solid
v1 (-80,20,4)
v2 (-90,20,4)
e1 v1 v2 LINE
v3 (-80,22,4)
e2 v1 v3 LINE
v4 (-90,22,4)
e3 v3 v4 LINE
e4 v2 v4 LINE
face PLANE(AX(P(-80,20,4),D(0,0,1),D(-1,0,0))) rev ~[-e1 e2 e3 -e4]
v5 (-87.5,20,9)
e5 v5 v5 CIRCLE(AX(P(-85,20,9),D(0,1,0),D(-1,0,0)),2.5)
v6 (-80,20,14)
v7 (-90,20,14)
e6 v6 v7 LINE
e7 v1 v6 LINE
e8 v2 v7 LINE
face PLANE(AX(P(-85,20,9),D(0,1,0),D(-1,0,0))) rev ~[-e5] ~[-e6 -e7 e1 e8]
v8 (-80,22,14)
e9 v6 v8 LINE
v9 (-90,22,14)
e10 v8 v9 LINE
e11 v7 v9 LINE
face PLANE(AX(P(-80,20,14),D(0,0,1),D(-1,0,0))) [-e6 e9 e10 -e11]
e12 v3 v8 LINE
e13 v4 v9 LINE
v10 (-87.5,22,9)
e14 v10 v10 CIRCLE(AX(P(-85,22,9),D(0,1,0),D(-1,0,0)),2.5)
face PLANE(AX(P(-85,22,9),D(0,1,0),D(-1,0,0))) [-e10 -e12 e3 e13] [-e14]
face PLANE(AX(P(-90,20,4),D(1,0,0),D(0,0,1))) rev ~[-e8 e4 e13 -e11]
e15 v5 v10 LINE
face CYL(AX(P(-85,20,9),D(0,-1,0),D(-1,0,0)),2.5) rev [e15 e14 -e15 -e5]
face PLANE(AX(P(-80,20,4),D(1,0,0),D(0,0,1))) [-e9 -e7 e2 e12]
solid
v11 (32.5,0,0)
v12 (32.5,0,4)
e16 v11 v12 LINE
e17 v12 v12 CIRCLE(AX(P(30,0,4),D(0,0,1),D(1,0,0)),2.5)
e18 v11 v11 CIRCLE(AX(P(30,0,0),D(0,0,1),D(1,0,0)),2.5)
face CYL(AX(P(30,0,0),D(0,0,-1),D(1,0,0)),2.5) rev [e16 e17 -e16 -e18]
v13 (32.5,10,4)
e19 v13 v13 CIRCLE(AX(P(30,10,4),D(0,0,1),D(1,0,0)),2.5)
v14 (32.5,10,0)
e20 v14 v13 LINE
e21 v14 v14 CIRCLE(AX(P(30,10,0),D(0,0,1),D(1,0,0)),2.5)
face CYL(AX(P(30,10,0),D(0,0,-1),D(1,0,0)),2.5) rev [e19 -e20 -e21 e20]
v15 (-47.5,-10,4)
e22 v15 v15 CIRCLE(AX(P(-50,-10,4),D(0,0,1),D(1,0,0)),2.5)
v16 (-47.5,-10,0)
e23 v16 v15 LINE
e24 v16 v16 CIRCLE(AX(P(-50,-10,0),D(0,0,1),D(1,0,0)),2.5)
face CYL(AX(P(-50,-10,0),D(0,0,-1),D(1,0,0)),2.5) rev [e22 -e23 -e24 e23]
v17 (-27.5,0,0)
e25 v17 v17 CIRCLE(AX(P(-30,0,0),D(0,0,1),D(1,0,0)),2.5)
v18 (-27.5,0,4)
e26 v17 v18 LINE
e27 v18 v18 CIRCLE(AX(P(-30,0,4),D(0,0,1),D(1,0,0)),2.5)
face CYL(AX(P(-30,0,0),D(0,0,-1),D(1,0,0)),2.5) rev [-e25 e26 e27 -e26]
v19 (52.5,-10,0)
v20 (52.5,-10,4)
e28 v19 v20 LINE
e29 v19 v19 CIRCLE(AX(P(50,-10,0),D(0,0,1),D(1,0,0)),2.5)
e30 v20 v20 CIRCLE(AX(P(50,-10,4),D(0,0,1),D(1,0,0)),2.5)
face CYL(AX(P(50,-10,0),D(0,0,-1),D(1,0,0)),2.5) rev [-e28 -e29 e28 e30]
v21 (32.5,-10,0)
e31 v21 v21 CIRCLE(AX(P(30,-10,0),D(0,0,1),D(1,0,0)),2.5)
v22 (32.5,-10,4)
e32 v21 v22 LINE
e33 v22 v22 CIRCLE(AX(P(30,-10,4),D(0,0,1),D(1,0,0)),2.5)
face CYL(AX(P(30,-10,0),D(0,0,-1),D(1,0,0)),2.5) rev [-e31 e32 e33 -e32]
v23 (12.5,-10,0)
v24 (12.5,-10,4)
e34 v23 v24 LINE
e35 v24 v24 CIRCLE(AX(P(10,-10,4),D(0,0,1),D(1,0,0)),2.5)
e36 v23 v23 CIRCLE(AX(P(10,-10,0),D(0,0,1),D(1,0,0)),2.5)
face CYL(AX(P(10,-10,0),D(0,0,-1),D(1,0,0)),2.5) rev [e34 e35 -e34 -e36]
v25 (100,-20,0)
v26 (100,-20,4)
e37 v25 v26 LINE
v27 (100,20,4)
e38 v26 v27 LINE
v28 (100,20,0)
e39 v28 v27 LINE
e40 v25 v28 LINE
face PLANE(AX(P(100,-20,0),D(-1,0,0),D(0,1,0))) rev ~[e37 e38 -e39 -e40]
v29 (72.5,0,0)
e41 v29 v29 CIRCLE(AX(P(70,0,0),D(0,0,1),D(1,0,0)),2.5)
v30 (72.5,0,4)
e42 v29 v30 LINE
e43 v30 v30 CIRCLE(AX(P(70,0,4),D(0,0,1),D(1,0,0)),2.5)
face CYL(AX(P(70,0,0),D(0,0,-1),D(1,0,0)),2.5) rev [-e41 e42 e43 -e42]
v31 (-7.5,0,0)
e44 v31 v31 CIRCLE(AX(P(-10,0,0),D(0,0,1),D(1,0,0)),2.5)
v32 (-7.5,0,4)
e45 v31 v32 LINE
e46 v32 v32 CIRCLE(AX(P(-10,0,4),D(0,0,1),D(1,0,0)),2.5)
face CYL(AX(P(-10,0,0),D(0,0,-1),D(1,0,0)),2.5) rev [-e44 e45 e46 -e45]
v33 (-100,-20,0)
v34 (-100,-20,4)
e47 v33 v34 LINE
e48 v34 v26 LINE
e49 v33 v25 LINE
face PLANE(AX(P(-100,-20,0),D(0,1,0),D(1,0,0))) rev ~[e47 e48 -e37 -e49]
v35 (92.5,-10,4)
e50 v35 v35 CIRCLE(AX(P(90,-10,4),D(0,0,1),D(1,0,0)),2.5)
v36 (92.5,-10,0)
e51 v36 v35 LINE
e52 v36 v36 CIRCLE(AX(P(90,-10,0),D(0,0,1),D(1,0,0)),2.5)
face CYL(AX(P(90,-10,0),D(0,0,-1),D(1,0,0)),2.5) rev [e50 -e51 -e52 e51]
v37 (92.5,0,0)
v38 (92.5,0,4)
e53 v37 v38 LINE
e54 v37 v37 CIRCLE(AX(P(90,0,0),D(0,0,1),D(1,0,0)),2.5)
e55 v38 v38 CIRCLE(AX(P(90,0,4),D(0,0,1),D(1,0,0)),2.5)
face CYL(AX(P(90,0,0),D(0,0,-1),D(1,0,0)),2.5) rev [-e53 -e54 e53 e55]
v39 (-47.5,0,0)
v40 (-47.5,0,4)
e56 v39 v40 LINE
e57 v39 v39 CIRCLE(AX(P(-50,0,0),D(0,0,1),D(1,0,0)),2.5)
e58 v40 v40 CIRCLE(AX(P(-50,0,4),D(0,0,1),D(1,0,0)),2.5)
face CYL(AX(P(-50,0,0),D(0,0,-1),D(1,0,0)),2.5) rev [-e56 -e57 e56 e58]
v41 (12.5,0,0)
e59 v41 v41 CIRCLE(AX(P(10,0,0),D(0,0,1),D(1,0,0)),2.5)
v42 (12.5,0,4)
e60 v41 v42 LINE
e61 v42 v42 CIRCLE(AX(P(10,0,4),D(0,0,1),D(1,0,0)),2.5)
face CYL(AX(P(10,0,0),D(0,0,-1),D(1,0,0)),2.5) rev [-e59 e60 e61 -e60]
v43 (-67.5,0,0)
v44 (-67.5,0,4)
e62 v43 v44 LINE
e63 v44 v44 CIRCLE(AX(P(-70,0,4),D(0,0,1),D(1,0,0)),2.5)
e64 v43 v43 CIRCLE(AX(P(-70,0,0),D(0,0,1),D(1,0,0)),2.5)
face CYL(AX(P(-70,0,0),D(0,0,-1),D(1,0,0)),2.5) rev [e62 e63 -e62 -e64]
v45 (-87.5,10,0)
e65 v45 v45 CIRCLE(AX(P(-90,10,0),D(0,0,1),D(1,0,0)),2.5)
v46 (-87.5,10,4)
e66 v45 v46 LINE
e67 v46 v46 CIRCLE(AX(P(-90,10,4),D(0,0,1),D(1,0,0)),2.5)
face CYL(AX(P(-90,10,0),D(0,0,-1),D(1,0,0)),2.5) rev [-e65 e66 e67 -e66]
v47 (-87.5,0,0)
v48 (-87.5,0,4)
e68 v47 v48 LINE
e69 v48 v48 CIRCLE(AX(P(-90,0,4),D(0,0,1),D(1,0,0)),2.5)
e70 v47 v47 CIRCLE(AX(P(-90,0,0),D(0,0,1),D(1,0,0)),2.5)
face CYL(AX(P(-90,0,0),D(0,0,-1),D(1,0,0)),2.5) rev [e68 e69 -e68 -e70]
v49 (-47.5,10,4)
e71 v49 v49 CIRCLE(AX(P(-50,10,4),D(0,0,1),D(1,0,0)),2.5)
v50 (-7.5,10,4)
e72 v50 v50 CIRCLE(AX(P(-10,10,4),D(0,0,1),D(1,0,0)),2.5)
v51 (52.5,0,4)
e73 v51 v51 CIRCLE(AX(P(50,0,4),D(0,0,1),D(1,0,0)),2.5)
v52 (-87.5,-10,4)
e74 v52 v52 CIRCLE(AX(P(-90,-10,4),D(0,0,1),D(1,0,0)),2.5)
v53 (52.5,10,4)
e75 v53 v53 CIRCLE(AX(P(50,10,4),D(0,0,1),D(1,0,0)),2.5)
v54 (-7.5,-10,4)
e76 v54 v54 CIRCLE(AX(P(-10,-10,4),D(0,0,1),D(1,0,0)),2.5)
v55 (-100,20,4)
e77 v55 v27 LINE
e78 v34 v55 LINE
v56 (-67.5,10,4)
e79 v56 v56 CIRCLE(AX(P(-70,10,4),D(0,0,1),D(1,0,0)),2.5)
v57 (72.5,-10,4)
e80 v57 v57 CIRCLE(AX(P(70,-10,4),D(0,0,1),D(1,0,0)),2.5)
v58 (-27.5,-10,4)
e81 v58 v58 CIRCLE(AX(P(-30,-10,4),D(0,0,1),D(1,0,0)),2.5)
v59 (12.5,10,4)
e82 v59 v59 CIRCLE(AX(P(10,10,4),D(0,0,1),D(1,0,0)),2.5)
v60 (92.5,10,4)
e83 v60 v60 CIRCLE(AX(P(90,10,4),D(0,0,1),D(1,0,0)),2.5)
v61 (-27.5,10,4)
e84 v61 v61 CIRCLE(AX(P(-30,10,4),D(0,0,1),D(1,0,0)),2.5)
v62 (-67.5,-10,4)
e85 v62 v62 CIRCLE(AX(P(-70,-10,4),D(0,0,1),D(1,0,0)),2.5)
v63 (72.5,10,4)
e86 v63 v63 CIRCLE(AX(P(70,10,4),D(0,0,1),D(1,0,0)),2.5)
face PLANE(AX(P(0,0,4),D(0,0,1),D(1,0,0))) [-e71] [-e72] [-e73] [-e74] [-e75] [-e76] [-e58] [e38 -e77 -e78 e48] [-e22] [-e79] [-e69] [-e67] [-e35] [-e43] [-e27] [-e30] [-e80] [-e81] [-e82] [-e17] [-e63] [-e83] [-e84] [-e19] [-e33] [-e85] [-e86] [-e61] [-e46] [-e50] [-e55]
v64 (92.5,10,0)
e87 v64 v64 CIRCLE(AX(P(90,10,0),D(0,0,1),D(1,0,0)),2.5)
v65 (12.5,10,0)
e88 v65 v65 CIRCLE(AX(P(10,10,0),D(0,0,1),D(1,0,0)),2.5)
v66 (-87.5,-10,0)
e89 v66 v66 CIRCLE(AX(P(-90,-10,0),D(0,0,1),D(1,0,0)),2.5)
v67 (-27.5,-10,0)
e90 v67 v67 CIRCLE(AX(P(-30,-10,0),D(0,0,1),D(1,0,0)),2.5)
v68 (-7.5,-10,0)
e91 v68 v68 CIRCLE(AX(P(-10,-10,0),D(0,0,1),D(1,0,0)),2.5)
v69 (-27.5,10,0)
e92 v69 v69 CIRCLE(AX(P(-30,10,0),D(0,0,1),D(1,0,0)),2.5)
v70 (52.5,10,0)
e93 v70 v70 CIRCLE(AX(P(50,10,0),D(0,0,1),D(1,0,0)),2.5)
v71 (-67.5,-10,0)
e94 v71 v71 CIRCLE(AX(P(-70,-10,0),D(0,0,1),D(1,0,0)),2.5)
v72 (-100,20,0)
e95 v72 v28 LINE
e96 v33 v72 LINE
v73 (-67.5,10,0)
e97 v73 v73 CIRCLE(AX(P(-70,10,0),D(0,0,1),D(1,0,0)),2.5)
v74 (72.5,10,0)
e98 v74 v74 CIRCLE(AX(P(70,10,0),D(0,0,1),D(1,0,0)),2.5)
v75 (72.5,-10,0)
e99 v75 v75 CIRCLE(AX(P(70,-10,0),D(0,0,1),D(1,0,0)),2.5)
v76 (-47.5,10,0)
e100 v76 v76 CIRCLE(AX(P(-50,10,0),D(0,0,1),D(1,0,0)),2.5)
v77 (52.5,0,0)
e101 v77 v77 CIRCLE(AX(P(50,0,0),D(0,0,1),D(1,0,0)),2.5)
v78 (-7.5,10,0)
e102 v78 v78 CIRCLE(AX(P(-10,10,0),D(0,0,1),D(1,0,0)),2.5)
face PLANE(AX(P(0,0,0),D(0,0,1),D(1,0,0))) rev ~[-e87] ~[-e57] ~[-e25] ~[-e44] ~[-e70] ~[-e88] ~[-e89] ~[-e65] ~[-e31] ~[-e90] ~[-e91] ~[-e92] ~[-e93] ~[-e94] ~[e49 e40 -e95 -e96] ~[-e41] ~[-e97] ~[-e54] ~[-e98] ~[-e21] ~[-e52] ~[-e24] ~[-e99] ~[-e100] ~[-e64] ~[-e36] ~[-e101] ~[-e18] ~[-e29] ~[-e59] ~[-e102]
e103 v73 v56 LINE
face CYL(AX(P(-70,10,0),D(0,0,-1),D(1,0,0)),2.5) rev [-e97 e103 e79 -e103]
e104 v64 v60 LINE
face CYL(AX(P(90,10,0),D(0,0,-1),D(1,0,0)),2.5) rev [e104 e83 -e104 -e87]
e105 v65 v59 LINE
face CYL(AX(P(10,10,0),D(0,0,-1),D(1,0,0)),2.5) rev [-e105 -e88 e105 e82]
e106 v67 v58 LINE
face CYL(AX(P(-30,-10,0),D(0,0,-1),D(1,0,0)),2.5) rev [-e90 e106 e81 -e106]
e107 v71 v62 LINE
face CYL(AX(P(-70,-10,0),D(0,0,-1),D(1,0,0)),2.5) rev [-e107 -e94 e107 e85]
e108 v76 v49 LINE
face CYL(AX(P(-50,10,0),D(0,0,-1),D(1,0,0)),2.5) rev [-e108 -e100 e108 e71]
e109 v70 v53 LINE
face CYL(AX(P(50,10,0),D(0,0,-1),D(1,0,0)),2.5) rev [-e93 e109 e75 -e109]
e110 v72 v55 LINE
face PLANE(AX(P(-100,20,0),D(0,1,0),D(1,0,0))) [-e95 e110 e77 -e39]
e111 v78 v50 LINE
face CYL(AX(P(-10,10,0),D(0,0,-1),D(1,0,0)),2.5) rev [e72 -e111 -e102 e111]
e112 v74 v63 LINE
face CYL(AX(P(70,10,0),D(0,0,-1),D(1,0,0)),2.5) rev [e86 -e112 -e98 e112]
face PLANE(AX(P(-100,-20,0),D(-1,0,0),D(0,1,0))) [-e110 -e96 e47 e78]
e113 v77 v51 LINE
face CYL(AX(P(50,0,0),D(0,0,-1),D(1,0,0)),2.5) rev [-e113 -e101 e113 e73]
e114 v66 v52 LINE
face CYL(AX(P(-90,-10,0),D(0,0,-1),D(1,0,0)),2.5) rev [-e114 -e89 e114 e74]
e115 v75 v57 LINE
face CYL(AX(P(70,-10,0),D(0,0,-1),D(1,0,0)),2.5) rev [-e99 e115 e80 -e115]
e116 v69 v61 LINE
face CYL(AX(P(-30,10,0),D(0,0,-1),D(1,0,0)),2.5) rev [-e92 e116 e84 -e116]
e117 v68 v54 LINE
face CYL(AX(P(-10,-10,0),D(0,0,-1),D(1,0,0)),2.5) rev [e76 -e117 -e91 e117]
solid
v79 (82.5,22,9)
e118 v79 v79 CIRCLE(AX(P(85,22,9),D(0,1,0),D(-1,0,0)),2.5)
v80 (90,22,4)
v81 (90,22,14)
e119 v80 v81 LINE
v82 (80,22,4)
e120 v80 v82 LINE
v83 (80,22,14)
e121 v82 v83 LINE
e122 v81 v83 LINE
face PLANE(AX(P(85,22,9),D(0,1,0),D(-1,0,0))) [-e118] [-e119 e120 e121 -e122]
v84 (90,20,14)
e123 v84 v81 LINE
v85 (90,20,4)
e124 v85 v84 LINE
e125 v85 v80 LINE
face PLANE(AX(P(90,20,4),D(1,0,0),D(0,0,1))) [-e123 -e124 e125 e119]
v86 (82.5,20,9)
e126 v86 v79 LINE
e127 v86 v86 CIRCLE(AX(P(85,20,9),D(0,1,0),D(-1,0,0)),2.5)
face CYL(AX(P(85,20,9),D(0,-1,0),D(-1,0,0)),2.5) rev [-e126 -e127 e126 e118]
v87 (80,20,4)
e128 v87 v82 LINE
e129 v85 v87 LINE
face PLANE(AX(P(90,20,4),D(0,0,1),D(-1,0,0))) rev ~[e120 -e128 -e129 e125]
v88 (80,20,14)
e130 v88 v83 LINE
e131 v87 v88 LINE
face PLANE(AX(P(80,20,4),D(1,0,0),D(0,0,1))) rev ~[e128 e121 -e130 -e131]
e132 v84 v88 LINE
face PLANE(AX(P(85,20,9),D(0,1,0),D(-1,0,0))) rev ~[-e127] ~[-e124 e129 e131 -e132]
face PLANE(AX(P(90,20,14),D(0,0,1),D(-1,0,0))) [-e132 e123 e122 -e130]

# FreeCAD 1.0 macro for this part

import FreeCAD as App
import Part
import Sketcher
from FreeCAD import Vector


def add_polygon(sketch, points):
    """Adds a closed chain of lines whose ends are joined by coincident constraints."""
    first, n = sketch.GeometryCount, len(points)
    for a, b in zip(points, points[1:] + points[:1]):
        sketch.addGeometry(Part.LineSegment(App.Vector(*a, 0), App.Vector(*b, 0)), False)
    for i in range(n):
        sketch.addConstraint(Sketcher.Constraint("Coincident", first + i, 2, first + (i + 1) % n, 1))

doc = App.newDocument("Part")
params = doc.addObject("Spreadsheet::Sheet", "Params")
for row, (alias, value) in enumerate([
    ("sketch1_diameter", "5 mm"),
    ("sketch1_width", "200 mm"),
    ("sketch1_height", "40 mm"),
    ("pad1_length", "4 mm"),
    ("sketch2_diameter", "5 mm"),
    ("sketch2_width", "10 mm"),
    ("pad2_length", "2 mm"),
], start=1):
    params.set(f"A{row}", alias)
    params.set(f"B{row}", "=" + value)
    params.setAlias(f"B{row}", alias)

body = doc.addObject("PartDesign::Body", "Body")

# Sketch on XY plane
sketch1 = doc.addObject("Sketcher::SketchObject", "Sketch")
body.addObject(sketch1)
sketch1.AttachmentSupport = (doc.XY_Plane, [""])
sketch1.MapMode = "FlatFace"
add_polygon(sketch1, [(-100, 20), (-100, -20), (100, -20), (100, 20)])  # lines 0-3
sketch1.addGeometry(Part.Circle(Vector(-90, -10, 0), Vector(0, 0, 1), 2.5), False)  # 4
sketch1.addGeometry(Part.Circle(Vector(-70, -10, 0), Vector(0, 0, 1), 2.5), False)  # 5
sketch1.addGeometry(Part.Circle(Vector(-50, -10, 0), Vector(0, 0, 1), 2.5), False)  # 6
sketch1.addGeometry(Part.Circle(Vector(-30, -10, 0), Vector(0, 0, 1), 2.5), False)  # 7
sketch1.addGeometry(Part.Circle(Vector(-10, -10, 0), Vector(0, 0, 1), 2.5), False)  # 8
sketch1.addGeometry(Part.Circle(Vector(10, -10, 0), Vector(0, 0, 1), 2.5), False)  # 9
sketch1.addGeometry(Part.Circle(Vector(30, -10, 0), Vector(0, 0, 1), 2.5), False)  # 10
sketch1.addGeometry(Part.Circle(Vector(50, -10, 0), Vector(0, 0, 1), 2.5), False)  # 11
sketch1.addGeometry(Part.Circle(Vector(70, -10, 0), Vector(0, 0, 1), 2.5), False)  # 12
sketch1.addGeometry(Part.Circle(Vector(90, -10, 0), Vector(0, 0, 1), 2.5), False)  # 13
sketch1.addGeometry(Part.Circle(Vector(-90, 0, 0), Vector(0, 0, 1), 2.5), False)  # 14
sketch1.addGeometry(Part.Circle(Vector(-70, 0, 0), Vector(0, 0, 1), 2.5), False)  # 15
sketch1.addGeometry(Part.Circle(Vector(-50, 0, 0), Vector(0, 0, 1), 2.5), False)  # 16
sketch1.addGeometry(Part.Circle(Vector(-30, 0, 0), Vector(0, 0, 1), 2.5), False)  # 17
sketch1.addGeometry(Part.Circle(Vector(-10, 0, 0), Vector(0, 0, 1), 2.5), False)  # 18
sketch1.addGeometry(Part.Circle(Vector(-90, 10, 0), Vector(0, 0, 1), 2.5), False)  # 19
sketch1.addGeometry(Part.Circle(Vector(-70, 10, 0), Vector(0, 0, 1), 2.5), False)  # 20
sketch1.addGeometry(Part.Circle(Vector(-50, 10, 0), Vector(0, 0, 1), 2.5), False)  # 21
sketch1.addGeometry(Part.Circle(Vector(-30, 10, 0), Vector(0, 0, 1), 2.5), False)  # 22
sketch1.addGeometry(Part.Circle(Vector(-10, 10, 0), Vector(0, 0, 1), 2.5), False)  # 23
sketch1.addGeometry(Part.Circle(Vector(10, 0, 0), Vector(0, 0, 1), 2.5), False)  # 24
sketch1.addGeometry(Part.Circle(Vector(30, 0, 0), Vector(0, 0, 1), 2.5), False)  # 25
sketch1.addGeometry(Part.Circle(Vector(50, 0, 0), Vector(0, 0, 1), 2.5), False)  # 26
sketch1.addGeometry(Part.Circle(Vector(70, 0, 0), Vector(0, 0, 1), 2.5), False)  # 27
sketch1.addGeometry(Part.Circle(Vector(90, 0, 0), Vector(0, 0, 1), 2.5), False)  # 28
sketch1.addGeometry(Part.Circle(Vector(10, 10, 0), Vector(0, 0, 1), 2.5), False)  # 29
sketch1.addGeometry(Part.Circle(Vector(30, 10, 0), Vector(0, 0, 1), 2.5), False)  # 30
sketch1.addGeometry(Part.Circle(Vector(50, 10, 0), Vector(0, 0, 1), 2.5), False)  # 31
sketch1.addGeometry(Part.Circle(Vector(70, 10, 0), Vector(0, 0, 1), 2.5), False)  # 32
sketch1.addGeometry(Part.Circle(Vector(90, 10, 0), Vector(0, 0, 1), 2.5), False)  # 33
sketch1.addConstraint(Sketcher.Constraint("Vertical", 0))
sketch1.addConstraint(Sketcher.Constraint("Horizontal", 1))
sketch1.addConstraint(Sketcher.Constraint("Vertical", 2))
sketch1.addConstraint(Sketcher.Constraint("Horizontal", 3))
sketch1.addConstraint(Sketcher.Constraint("Equal", 4, 5))
sketch1.addConstraint(Sketcher.Constraint("Equal", 5, 6))
sketch1.addConstraint(Sketcher.Constraint("Equal", 6, 7))
sketch1.addConstraint(Sketcher.Constraint("Equal", 7, 8))
sketch1.addConstraint(Sketcher.Constraint("Equal", 8, 9))
sketch1.addConstraint(Sketcher.Constraint("Equal", 9, 10))
sketch1.addConstraint(Sketcher.Constraint("Equal", 10, 11))
sketch1.addConstraint(Sketcher.Constraint("Equal", 11, 12))
sketch1.addConstraint(Sketcher.Constraint("Equal", 12, 13))
sketch1.addConstraint(Sketcher.Constraint("Equal", 13, 14))
sketch1.addConstraint(Sketcher.Constraint("Equal", 14, 15))
sketch1.addConstraint(Sketcher.Constraint("Equal", 15, 16))
sketch1.addConstraint(Sketcher.Constraint("Equal", 16, 17))
sketch1.addConstraint(Sketcher.Constraint("Equal", 17, 18))
sketch1.addConstraint(Sketcher.Constraint("Equal", 18, 19))
sketch1.addConstraint(Sketcher.Constraint("Equal", 19, 20))
sketch1.addConstraint(Sketcher.Constraint("Equal", 20, 21))
sketch1.addConstraint(Sketcher.Constraint("Equal", 21, 22))
sketch1.addConstraint(Sketcher.Constraint("Equal", 22, 23))
sketch1.addConstraint(Sketcher.Constraint("Equal", 23, 24))
sketch1.addConstraint(Sketcher.Constraint("Equal", 24, 25))
sketch1.addConstraint(Sketcher.Constraint("Equal", 25, 26))
sketch1.addConstraint(Sketcher.Constraint("Equal", 26, 27))
sketch1.addConstraint(Sketcher.Constraint("Equal", 27, 28))
sketch1.addConstraint(Sketcher.Constraint("Equal", 28, 29))
sketch1.addConstraint(Sketcher.Constraint("Equal", 29, 30))
sketch1.addConstraint(Sketcher.Constraint("Equal", 30, 31))
sketch1.addConstraint(Sketcher.Constraint("Equal", 31, 32))
sketch1.addConstraint(Sketcher.Constraint("Equal", 32, 33))
sketch1.addConstraint(Sketcher.Constraint("Symmetric", 13, 3, 19, 3, -1, 1))
sketch1.addConstraint(Sketcher.Constraint("Symmetric", 12, 3, 20, 3, -1, 1))
sketch1.addConstraint(Sketcher.Constraint("Symmetric", 11, 3, 21, 3, -1, 1))
sketch1.addConstraint(Sketcher.Constraint("Symmetric", 10, 3, 22, 3, -1, 1))
sketch1.addConstraint(Sketcher.Constraint("Symmetric", 9, 3, 23, 3, -1, 1))
sketch1.addConstraint(Sketcher.Constraint("Symmetric", 18, 3, 24, 3, -1, 1))
sketch1.addConstraint(Sketcher.Constraint("Symmetric", 17, 3, 25, 3, -1, 1))
sketch1.addConstraint(Sketcher.Constraint("Symmetric", 16, 3, 26, 3, -1, 1))
sketch1.addConstraint(Sketcher.Constraint("Symmetric", 15, 3, 27, 3, -1, 1))
sketch1.addConstraint(Sketcher.Constraint("Symmetric", 14, 3, 28, 3, -1, 1))
sketch1.addConstraint(Sketcher.Constraint("Symmetric", 8, 3, 29, 3, -1, 1))
sketch1.addConstraint(Sketcher.Constraint("Symmetric", 7, 3, 30, 3, -1, 1))
sketch1.addConstraint(Sketcher.Constraint("Symmetric", 6, 3, 31, 3, -1, 1))
sketch1.addConstraint(Sketcher.Constraint("Symmetric", 5, 3, 32, 3, -1, 1))
sketch1.addConstraint(Sketcher.Constraint("Symmetric", 4, 3, 33, 3, -1, 1))
sketch1.addConstraint(Sketcher.Constraint("Symmetric", 0, 2, 2, 2, -1, 1))
sketch1.addConstraint(Sketcher.Constraint("Symmetric", 8, 3, 9, 3, -2))
sketch1.addConstraint(Sketcher.Constraint("Symmetric", 7, 3, 10, 3, -2))
sketch1.addConstraint(Sketcher.Constraint("Symmetric", 6, 3, 11, 3, -2))
sketch1.addConstraint(Sketcher.Constraint("Symmetric", 5, 3, 12, 3, -2))
sketch1.addConstraint(Sketcher.Constraint("Symmetric", 4, 3, 13, 3, -2))
sketch1.addConstraint(Sketcher.Constraint("PointOnObject", 14, 3, -1))
sketch1.addConstraint(Sketcher.Constraint("PointOnObject", 15, 3, -1))
sketch1.addConstraint(Sketcher.Constraint("PointOnObject", 16, 3, -1))
sketch1.addConstraint(Sketcher.Constraint("PointOnObject", 17, 3, -1))
sketch1.addConstraint(Sketcher.Constraint("PointOnObject", 18, 3, -1))
sketch1.addConstraint(Sketcher.Constraint("Horizontal", 4, 3, 5, 3))
sketch1.addConstraint(Sketcher.Constraint("Horizontal", 5, 3, 6, 3))
sketch1.addConstraint(Sketcher.Constraint("Horizontal", 6, 3, 7, 3))
sketch1.addConstraint(Sketcher.Constraint("Horizontal", 7, 3, 8, 3))
sketch1.addConstraint(Sketcher.Constraint("Vertical", 4, 3, 14, 3))
sketch1.addConstraint(Sketcher.Constraint("Vertical", 5, 3, 15, 3))
sketch1.addConstraint(Sketcher.Constraint("Vertical", 6, 3, 16, 3))
sketch1.addConstraint(Sketcher.Constraint("Vertical", 7, 3, 17, 3))
sketch1.addConstraint(Sketcher.Constraint("Vertical", 8, 3, 18, 3))
sketch1.addConstraint(Sketcher.Constraint("Diameter", 4, 5.0))
sketch1.addConstraint(Sketcher.Constraint("DistanceX", 1, 1, 1, 2, 200.0))
sketch1.addConstraint(Sketcher.Constraint("DistanceY", 0, 2, 0, 1, 40.0))
sketch1.addConstraint(Sketcher.Constraint("DistanceX", 4, 3, -1, 1, 90.0))
sketch1.addConstraint(Sketcher.Constraint("DistanceY", 4, 3, -1, 1, 10.0))
sketch1.addConstraint(Sketcher.Constraint("DistanceX", 5, 3, -1, 1, 70.0))
sketch1.addConstraint(Sketcher.Constraint("DistanceX", 6, 3, -1, 1, 50.0))
sketch1.addConstraint(Sketcher.Constraint("DistanceX", 7, 3, -1, 1, 30.0))
sketch1.addConstraint(Sketcher.Constraint("DistanceX", 8, 3, -1, 1, 10.0))
sketch1.setExpression("Constraints[72]", "Params.sketch1_diameter")
sketch1.setExpression("Constraints[73]", "Params.sketch1_width")
sketch1.setExpression("Constraints[74]", "Params.sketch1_height")
pad1 = doc.addObject("PartDesign::Pad", "Pad")
body.addObject(pad1)
pad1.Profile = sketch1
pad1.setExpression("Length", "Params.pad1_length")
body2 = doc.addObject("PartDesign::Body", "Body001")
body2.AllowCompound = True

# Sketch on XZ plane
sketch2 = doc.addObject("Sketcher::SketchObject", "Sketch001")
body2.addObject(sketch2)
sketch2.AttachmentSupport = (doc.getObject("XZ_Plane001"), [""])
sketch2.MapMode = "FlatFace"
sketch2.AttachmentOffset = App.Placement(Vector(0, 0, -20), App.Rotation())
add_polygon(sketch2, [(-80, 14), (-80, 4), (-90, 4), (-90, 14)])  # lines 0-3
sketch2.addGeometry(Part.Circle(Vector(-85, 9, 0), Vector(0, 0, 1), 2.5), False)  # 4
add_polygon(sketch2, [(90, 14), (90, 4), (80, 4), (80, 14)])  # lines 5-8
sketch2.addGeometry(Part.Circle(Vector(85, 9, 0), Vector(0, 0, 1), 2.5), False)  # 9
sketch2.addConstraint(Sketcher.Constraint("Vertical", 0))
sketch2.addConstraint(Sketcher.Constraint("Horizontal", 1))
sketch2.addConstraint(Sketcher.Constraint("Vertical", 2))
sketch2.addConstraint(Sketcher.Constraint("Horizontal", 3))
sketch2.addConstraint(Sketcher.Constraint("Vertical", 5))
sketch2.addConstraint(Sketcher.Constraint("Horizontal", 6))
sketch2.addConstraint(Sketcher.Constraint("Vertical", 7))
sketch2.addConstraint(Sketcher.Constraint("Horizontal", 8))
sketch2.addConstraint(Sketcher.Constraint("Equal", 4, 9))
sketch2.addConstraint(Sketcher.Constraint("Symmetric", 4, 3, 9, 3, -2))
sketch2.addConstraint(Sketcher.Constraint("Symmetric", 1, 2, 5, 2, -2))
sketch2.addConstraint(Sketcher.Constraint("Symmetric", 3, 2, 7, 2, -2))
sketch2.addConstraint(Sketcher.Constraint("Equal", 8, 0))
sketch2.addConstraint(Sketcher.Constraint("Diameter", 4, 5.0))
sketch2.addConstraint(Sketcher.Constraint("DistanceX", 1, 2, 1, 1, 10.0))
sketch2.addConstraint(Sketcher.Constraint("DistanceX", 4, 3, -1, 1, 85.0))
sketch2.addConstraint(Sketcher.Constraint("DistanceY", -1, 1, 4, 3, 9.0))
sketch2.addConstraint(Sketcher.Constraint("DistanceX", 0, 2, -1, 1, 80.0))
sketch2.addConstraint(Sketcher.Constraint("DistanceY", -1, 1, 0, 2, 4.0))
sketch2.setExpression("Constraints[21]", "Params.sketch2_diameter")
sketch2.setExpression("Constraints[22]", "Params.sketch2_width")
pad2 = doc.addObject("PartDesign::Pad", "Pad001")
body2.addObject(pad2)
pad2.Profile = sketch2
pad2.setExpression("Length", "Params.pad2_length")
pad2.Reversed = True

doc.recompute()
